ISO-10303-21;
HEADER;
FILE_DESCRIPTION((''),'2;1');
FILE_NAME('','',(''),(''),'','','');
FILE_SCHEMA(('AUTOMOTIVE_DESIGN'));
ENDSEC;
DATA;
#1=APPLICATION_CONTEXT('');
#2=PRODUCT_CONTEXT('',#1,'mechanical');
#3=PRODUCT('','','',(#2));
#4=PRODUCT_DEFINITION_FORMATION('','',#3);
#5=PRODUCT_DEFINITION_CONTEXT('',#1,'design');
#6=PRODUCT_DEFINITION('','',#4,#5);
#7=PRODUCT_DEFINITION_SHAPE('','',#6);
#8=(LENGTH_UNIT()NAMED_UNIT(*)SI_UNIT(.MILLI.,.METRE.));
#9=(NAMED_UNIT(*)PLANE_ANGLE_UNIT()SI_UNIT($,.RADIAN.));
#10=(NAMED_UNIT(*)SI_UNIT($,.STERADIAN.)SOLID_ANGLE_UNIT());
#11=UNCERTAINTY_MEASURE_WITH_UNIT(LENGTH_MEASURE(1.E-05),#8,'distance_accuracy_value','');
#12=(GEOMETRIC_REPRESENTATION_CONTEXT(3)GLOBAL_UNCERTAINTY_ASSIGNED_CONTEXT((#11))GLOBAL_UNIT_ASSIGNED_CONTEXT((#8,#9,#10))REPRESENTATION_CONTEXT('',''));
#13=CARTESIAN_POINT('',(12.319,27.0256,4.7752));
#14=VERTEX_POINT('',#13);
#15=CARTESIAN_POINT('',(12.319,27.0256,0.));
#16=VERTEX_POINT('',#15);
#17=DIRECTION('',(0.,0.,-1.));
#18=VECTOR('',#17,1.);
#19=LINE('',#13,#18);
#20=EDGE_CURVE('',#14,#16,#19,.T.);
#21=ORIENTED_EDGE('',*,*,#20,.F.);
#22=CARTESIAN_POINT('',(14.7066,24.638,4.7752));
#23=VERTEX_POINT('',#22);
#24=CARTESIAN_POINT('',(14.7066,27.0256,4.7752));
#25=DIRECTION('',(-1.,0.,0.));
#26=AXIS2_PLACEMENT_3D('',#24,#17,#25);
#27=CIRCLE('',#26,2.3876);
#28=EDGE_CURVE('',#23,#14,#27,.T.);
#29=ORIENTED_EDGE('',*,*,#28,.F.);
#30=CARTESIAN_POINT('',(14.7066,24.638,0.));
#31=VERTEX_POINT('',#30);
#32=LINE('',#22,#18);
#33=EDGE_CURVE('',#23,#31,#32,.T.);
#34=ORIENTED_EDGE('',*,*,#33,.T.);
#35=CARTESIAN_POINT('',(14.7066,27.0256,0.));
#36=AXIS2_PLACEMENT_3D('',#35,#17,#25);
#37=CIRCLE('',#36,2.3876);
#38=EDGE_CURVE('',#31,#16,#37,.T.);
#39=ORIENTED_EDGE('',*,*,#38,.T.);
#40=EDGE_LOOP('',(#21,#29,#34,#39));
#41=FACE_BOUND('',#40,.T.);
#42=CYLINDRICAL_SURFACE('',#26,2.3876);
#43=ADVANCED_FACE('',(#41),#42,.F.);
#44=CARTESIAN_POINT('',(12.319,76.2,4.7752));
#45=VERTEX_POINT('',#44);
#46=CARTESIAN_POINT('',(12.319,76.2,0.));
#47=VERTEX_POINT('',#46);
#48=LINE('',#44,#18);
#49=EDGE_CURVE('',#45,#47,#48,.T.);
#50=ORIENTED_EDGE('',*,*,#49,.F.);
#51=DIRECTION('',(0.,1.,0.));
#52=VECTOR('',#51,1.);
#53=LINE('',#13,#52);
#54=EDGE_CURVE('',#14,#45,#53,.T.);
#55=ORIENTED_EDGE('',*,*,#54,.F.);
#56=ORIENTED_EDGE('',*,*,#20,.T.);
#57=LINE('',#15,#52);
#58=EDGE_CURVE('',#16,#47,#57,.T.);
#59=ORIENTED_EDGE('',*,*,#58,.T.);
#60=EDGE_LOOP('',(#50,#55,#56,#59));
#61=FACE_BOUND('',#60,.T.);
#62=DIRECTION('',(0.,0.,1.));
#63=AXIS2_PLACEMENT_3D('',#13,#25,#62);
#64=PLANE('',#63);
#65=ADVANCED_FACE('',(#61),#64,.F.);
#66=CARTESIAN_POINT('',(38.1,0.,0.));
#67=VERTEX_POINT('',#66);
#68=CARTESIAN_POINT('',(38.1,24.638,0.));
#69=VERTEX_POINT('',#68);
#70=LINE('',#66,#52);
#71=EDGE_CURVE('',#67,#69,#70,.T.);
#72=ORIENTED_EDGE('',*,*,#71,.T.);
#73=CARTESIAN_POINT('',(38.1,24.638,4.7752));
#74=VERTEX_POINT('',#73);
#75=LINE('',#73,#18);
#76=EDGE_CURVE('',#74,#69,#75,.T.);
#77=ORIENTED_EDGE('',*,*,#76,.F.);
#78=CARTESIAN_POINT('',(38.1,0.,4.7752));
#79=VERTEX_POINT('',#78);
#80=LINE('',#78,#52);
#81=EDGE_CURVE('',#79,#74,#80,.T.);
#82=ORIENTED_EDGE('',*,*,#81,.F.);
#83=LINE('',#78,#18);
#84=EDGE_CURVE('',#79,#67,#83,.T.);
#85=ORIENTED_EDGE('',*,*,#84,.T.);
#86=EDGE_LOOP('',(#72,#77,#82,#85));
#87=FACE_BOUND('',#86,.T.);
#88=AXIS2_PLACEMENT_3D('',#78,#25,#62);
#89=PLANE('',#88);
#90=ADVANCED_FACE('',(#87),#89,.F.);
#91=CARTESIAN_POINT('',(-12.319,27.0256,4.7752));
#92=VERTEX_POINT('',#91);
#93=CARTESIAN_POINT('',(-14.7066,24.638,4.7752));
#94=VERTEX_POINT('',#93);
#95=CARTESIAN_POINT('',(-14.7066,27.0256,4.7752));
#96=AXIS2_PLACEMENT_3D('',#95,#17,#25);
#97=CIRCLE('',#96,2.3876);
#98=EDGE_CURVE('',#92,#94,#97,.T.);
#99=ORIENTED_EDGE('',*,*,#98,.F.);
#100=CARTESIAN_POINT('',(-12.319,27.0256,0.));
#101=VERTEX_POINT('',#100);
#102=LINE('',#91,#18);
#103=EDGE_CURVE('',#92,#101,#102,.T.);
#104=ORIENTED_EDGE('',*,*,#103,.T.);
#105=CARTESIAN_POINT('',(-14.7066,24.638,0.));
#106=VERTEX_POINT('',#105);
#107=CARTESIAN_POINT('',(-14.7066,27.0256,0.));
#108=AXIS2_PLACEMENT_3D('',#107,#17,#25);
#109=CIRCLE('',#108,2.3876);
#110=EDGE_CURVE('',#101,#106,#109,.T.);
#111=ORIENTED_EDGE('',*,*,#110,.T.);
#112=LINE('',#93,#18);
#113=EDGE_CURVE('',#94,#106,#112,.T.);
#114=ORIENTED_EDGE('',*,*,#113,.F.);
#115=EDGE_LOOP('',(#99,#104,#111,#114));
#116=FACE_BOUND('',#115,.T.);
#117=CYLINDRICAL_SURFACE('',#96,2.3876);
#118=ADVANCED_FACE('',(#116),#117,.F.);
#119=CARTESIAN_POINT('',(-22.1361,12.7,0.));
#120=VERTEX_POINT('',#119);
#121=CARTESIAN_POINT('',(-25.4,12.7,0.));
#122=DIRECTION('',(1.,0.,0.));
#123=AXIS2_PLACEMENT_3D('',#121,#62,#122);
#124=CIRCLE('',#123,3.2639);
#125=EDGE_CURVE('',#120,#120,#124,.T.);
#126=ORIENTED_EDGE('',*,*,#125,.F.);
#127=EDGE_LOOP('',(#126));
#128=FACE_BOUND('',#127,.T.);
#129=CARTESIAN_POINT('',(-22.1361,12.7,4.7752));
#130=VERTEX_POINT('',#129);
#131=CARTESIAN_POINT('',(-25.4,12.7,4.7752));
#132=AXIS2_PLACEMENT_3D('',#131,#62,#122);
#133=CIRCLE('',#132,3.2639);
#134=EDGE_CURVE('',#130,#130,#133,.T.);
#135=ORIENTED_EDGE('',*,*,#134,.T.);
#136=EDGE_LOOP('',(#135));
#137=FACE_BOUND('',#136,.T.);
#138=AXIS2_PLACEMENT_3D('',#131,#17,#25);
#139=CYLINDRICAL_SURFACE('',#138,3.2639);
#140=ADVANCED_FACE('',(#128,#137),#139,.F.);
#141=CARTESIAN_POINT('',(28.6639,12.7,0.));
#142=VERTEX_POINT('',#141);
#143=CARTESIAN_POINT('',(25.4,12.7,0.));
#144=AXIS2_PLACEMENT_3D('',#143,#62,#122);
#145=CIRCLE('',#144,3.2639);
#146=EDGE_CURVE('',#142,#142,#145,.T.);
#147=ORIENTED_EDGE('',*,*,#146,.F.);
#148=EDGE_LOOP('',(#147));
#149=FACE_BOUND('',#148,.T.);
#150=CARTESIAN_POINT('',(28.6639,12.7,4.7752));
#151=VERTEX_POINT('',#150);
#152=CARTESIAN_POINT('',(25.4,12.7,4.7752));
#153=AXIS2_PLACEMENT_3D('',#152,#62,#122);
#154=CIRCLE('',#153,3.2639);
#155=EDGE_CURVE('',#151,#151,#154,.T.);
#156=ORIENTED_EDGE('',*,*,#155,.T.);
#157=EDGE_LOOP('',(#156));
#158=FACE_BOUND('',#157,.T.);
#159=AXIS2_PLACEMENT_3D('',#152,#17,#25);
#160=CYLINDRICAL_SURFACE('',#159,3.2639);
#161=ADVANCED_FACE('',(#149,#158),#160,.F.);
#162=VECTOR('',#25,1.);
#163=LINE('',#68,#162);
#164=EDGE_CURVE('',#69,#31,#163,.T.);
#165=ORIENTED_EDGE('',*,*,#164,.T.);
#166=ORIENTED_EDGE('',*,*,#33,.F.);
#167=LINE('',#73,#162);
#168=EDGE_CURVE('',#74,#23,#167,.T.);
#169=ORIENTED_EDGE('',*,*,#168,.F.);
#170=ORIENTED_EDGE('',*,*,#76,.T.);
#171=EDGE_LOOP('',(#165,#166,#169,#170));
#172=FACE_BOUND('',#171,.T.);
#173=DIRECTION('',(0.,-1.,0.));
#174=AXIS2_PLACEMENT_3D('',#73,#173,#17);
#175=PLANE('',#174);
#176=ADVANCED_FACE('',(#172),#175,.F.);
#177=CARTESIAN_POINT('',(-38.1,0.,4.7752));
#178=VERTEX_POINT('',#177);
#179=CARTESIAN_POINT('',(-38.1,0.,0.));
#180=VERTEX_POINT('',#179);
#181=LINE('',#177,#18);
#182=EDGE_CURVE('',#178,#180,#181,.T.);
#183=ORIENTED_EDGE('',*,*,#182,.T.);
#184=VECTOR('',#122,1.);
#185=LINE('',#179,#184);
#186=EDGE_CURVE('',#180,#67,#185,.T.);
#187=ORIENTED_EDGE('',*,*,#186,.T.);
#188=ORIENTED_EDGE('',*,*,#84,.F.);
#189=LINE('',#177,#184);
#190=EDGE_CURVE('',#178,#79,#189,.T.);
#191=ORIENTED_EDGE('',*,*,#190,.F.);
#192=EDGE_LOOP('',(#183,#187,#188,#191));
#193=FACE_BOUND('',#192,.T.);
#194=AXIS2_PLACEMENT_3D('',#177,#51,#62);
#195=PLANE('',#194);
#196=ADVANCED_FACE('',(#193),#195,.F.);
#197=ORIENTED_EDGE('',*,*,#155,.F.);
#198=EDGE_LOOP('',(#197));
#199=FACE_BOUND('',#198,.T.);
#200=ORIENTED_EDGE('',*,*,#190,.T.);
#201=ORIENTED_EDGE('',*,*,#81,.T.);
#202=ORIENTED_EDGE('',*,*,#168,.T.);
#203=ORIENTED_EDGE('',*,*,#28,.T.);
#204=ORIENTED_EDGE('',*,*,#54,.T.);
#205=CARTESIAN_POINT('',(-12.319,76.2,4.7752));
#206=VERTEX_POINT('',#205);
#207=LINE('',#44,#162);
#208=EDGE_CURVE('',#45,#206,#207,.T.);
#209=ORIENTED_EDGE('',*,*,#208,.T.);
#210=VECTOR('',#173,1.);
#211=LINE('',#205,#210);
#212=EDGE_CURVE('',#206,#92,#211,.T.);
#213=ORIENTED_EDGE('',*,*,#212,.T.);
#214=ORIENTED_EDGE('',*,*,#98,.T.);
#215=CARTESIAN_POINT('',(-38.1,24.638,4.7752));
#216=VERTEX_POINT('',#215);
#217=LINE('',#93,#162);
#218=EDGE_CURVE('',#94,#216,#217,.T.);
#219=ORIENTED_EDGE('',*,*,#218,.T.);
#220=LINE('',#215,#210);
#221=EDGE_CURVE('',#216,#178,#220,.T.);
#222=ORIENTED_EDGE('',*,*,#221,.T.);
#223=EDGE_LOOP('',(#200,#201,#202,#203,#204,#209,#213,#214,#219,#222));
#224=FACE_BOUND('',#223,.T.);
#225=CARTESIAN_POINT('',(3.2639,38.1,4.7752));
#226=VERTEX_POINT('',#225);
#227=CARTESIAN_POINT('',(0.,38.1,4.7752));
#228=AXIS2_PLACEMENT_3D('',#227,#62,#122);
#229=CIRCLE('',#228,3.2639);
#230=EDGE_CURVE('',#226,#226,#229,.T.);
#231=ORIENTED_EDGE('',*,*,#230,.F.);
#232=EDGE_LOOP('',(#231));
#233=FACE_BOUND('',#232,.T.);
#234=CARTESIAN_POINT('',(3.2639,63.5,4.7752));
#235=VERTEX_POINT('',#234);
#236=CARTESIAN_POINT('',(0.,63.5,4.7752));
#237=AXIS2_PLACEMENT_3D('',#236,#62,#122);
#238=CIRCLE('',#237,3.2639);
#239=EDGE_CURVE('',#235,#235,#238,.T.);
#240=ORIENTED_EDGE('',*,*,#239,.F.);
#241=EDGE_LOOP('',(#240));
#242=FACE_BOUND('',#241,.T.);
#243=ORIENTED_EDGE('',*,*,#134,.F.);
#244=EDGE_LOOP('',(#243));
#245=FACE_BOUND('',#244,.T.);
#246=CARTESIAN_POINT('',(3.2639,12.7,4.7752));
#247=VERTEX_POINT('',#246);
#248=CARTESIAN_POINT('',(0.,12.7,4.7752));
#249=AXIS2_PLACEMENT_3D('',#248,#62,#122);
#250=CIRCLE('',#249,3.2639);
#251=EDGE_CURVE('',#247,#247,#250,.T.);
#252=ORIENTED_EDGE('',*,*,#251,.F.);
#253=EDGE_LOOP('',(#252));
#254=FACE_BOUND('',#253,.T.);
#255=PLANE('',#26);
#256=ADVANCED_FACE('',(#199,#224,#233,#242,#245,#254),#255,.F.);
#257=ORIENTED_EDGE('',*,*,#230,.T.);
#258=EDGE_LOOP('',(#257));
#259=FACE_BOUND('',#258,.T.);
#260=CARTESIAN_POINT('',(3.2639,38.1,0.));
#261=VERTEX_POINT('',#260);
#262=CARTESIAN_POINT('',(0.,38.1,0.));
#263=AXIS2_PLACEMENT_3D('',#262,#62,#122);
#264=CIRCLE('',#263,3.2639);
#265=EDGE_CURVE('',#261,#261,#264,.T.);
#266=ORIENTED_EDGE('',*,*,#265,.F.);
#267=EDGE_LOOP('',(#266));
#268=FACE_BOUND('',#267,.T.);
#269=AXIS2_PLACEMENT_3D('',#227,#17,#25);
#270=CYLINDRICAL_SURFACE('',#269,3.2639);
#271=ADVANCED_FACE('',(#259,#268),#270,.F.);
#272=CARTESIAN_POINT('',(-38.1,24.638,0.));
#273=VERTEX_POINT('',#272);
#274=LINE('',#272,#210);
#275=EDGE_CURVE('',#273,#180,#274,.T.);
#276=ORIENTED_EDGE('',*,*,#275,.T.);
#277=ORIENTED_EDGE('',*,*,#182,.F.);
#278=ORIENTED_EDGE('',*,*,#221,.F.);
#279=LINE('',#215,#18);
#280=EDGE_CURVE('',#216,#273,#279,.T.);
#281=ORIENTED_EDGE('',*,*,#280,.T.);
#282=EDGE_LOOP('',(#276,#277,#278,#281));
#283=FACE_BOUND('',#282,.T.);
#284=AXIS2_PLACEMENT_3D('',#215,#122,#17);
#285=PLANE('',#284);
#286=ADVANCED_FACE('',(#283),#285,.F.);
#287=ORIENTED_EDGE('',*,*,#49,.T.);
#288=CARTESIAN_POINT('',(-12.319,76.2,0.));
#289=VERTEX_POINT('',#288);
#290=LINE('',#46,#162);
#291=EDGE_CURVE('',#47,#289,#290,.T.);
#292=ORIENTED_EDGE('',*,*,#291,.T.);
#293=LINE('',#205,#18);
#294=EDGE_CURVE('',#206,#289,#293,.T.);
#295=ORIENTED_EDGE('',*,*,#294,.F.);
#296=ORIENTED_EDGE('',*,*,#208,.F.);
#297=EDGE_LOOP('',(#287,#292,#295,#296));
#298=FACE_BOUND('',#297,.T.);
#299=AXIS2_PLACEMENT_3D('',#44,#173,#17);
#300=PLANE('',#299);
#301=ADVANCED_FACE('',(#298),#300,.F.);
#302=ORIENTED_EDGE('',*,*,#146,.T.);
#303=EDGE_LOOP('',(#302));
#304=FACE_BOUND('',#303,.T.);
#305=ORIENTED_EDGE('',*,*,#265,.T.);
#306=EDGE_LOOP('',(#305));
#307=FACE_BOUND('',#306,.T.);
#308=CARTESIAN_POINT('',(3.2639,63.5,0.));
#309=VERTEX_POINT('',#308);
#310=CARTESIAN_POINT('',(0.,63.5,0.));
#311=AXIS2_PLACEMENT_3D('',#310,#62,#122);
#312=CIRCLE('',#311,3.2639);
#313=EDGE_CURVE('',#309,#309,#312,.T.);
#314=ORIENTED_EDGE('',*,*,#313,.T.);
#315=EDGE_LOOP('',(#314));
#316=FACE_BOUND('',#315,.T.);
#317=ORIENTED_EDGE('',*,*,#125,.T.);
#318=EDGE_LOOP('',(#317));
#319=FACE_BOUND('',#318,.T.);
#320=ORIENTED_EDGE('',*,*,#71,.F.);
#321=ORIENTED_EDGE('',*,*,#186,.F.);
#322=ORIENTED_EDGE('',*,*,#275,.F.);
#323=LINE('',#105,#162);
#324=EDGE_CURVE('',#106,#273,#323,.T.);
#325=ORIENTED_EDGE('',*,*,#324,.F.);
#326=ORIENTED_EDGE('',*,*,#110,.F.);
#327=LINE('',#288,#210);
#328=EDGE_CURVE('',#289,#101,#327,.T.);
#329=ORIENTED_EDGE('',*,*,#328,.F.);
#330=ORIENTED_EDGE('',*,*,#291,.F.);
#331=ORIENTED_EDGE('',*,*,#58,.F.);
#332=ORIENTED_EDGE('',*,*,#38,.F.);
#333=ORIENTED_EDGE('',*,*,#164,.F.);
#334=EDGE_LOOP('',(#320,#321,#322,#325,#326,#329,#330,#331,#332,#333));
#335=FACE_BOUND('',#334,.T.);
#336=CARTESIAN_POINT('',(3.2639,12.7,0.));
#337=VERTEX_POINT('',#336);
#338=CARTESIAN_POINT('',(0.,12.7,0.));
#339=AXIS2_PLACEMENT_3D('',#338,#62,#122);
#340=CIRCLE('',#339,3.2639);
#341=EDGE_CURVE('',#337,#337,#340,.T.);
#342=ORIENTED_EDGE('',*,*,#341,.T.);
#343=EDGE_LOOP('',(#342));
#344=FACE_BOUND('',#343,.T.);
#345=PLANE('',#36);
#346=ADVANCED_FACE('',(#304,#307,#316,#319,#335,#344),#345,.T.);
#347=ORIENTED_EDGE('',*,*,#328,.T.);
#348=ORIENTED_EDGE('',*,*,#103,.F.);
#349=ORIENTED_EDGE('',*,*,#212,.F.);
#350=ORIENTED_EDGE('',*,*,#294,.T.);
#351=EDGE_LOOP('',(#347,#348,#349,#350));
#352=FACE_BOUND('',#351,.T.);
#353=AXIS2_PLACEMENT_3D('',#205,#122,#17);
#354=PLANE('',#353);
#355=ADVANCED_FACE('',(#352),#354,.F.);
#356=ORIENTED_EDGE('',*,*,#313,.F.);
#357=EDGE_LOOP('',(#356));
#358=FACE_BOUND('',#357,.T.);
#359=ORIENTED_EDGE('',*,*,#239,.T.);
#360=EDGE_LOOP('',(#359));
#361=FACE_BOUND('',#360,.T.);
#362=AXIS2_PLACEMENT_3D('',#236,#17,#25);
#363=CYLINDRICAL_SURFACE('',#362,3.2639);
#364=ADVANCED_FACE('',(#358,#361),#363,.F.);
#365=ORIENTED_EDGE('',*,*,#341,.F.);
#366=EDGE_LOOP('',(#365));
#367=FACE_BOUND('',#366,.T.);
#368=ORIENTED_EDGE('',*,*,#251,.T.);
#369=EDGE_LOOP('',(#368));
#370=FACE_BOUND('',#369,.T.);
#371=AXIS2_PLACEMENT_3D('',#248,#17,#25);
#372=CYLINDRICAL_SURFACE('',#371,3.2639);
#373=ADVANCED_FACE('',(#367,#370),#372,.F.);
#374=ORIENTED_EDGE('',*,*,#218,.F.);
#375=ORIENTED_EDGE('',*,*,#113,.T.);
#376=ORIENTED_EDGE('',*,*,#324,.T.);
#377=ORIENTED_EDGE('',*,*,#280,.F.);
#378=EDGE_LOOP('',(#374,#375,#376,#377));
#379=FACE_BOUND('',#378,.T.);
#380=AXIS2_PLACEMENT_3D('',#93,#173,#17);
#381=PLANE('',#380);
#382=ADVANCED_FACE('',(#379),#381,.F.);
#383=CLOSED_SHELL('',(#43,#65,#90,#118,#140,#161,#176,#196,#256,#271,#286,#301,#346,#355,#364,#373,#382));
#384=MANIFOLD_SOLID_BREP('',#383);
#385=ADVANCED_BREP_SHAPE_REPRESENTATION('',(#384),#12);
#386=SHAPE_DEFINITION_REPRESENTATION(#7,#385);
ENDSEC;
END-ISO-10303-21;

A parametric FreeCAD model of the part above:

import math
import FreeCAD as App
import Part
import Sketcher

V = App.Vector
Q = App.Units.Quantity

doc = App.newDocument("Part")
body = doc.addObject("PartDesign::Body", "Body")

# Sketch on XY plane
sketch1 = doc.addObject("Sketcher::SketchObject", "Sketch")
body.addObject(sketch1)
sketch1.AttachmentSupport = (doc.XY_Plane, [""])
sketch1.MapMode = "FlatFace"
sketch1.addGeometry([
    Part.LineSegment(V(-38.1, 0, 0), V(38.1, 0, 0)),  # 0
    Part.LineSegment(V(38.1, 0, 0), V(38.1, 24.6, 0)),  # 1
    Part.LineSegment(V(38.1, 24.6, 0), V(14.7, 24.6, 0)),  # 2
    Part.ArcOfCircle(Part.Circle(V(14.7, 27, 0), V(0, 0, 1), 2.4), math.radians(180), math.radians(270)),  # 3
    Part.LineSegment(V(12.3, 27, 0), V(12.3, 76.2, 0)),  # 4
    Part.LineSegment(V(12.3, 76.2, 0), V(-12.3, 76.2, 0)),  # 5
    Part.LineSegment(V(-12.3, 76.2, 0), V(-12.3, 27, 0)),  # 6
    Part.ArcOfCircle(Part.Circle(V(-14.7, 27, 0), V(0, 0, 1), 2.4), math.radians(-90), math.radians(0)),  # 7
    Part.LineSegment(V(-14.7, 24.6, 0), V(-38.1, 24.6, 0)),  # 8
    Part.LineSegment(V(-38.1, 24.6, 0), V(-38.1, 0, 0)),  # 9
    Part.Circle(V(-25.4, 12.7, 0), V(0, 0, 1), 3.3),  # 10
    Part.Circle(V(0, 12.7, 0), V(0, 0, 1), 3.3),  # 11
    Part.Circle(V(25.4, 12.7, 0), V(0, 0, 1), 3.3),  # 12
    Part.Circle(V(0, 38.1, 0), V(0, 0, 1), 3.3),  # 13
    Part.Circle(V(0, 63.5, 0), V(0, 0, 1), 3.3),  # 14
], False)
sketch1.addConstraint([
    Sketcher.Constraint("Coincident", 0, 2, 1, 1),
    Sketcher.Constraint("Coincident", 1, 2, 2, 1),
    Sketcher.Constraint("Tangent", 2, 2, 3, 2),
    Sketcher.Constraint("Tangent", 3, 1, 4, 1),
    Sketcher.Constraint("Coincident", 4, 2, 5, 1),
    Sketcher.Constraint("Coincident", 5, 2, 6, 1),
    Sketcher.Constraint("Tangent", 6, 2, 7, 2),
    Sketcher.Constraint("Tangent", 7, 1, 8, 1),
    Sketcher.Constraint("Coincident", 8, 2, 9, 1),
    Sketcher.Constraint("Coincident", 9, 2, 0, 1),
    Sketcher.Constraint("Horizontal", 0),
    Sketcher.Constraint("Vertical", 1),
    Sketcher.Constraint("Horizontal", 2),
    Sketcher.Constraint("Vertical", 4),
    Sketcher.Constraint("Horizontal", 5),
    Sketcher.Constraint("Vertical", 6),
    Sketcher.Constraint("Horizontal", 8),
    Sketcher.Constraint("Vertical", 9),
    Sketcher.Constraint("Equal", 3, 7),
    Sketcher.Constraint("Equal", 10, 11),
    Sketcher.Constraint("Equal", 11, 12),
    Sketcher.Constraint("Equal", 12, 13),
    Sketcher.Constraint("Equal", 13, 14),
    Sketcher.Constraint("Symmetric", 0, 2, 9, 2, -1, 1),
    Sketcher.Constraint("Symmetric", 3, 3, 7, 3, -2),
    Sketcher.Constraint("Symmetric", 10, 3, 12, 3, -2),
    Sketcher.Constraint("PointOnObject", 11, 3, -2),
    Sketcher.Constraint("PointOnObject", 13, 3, -2),
    Sketcher.Constraint("PointOnObject", 14, 3, -2),
    Sketcher.Constraint("Horizontal", 10, 3, 11, 3),
    Sketcher.Constraint("Equal", 5, 1),
    Sketcher.Constraint("DistanceX", 0, 1, 0, 2, Q("3 in")),
    Sketcher.Constraint("Diameter", 10, Q("0.257 in")),
    Sketcher.Constraint("DistanceX", 10, 3, -1, 1, Q("1 in")),
    Sketcher.Constraint("DistanceY", -1, 1, 4, 2, Q("3 in")),
    Sketcher.Constraint("Radius", 3, Q("0.094 in")),
    Sketcher.Constraint("DistanceY", 11, 3, 13, 3, Q("1 in")),
    Sketcher.Constraint("DistanceY", 13, 3, 14, 3, Q("1 in")),
    Sketcher.Constraint("DistanceX", 5, 2, 5, 1, Q("0.97 in")),
    Sketcher.Constraint("DistanceY", -1, 1, 10, 3, Q("0.5 in")),
])
pad1 = doc.addObject("PartDesign::Pad", "Pad")
body.addObject(pad1)
pad1.Profile = sketch1
pad1.Length = Q("0.188 in")

doc.recompute()
